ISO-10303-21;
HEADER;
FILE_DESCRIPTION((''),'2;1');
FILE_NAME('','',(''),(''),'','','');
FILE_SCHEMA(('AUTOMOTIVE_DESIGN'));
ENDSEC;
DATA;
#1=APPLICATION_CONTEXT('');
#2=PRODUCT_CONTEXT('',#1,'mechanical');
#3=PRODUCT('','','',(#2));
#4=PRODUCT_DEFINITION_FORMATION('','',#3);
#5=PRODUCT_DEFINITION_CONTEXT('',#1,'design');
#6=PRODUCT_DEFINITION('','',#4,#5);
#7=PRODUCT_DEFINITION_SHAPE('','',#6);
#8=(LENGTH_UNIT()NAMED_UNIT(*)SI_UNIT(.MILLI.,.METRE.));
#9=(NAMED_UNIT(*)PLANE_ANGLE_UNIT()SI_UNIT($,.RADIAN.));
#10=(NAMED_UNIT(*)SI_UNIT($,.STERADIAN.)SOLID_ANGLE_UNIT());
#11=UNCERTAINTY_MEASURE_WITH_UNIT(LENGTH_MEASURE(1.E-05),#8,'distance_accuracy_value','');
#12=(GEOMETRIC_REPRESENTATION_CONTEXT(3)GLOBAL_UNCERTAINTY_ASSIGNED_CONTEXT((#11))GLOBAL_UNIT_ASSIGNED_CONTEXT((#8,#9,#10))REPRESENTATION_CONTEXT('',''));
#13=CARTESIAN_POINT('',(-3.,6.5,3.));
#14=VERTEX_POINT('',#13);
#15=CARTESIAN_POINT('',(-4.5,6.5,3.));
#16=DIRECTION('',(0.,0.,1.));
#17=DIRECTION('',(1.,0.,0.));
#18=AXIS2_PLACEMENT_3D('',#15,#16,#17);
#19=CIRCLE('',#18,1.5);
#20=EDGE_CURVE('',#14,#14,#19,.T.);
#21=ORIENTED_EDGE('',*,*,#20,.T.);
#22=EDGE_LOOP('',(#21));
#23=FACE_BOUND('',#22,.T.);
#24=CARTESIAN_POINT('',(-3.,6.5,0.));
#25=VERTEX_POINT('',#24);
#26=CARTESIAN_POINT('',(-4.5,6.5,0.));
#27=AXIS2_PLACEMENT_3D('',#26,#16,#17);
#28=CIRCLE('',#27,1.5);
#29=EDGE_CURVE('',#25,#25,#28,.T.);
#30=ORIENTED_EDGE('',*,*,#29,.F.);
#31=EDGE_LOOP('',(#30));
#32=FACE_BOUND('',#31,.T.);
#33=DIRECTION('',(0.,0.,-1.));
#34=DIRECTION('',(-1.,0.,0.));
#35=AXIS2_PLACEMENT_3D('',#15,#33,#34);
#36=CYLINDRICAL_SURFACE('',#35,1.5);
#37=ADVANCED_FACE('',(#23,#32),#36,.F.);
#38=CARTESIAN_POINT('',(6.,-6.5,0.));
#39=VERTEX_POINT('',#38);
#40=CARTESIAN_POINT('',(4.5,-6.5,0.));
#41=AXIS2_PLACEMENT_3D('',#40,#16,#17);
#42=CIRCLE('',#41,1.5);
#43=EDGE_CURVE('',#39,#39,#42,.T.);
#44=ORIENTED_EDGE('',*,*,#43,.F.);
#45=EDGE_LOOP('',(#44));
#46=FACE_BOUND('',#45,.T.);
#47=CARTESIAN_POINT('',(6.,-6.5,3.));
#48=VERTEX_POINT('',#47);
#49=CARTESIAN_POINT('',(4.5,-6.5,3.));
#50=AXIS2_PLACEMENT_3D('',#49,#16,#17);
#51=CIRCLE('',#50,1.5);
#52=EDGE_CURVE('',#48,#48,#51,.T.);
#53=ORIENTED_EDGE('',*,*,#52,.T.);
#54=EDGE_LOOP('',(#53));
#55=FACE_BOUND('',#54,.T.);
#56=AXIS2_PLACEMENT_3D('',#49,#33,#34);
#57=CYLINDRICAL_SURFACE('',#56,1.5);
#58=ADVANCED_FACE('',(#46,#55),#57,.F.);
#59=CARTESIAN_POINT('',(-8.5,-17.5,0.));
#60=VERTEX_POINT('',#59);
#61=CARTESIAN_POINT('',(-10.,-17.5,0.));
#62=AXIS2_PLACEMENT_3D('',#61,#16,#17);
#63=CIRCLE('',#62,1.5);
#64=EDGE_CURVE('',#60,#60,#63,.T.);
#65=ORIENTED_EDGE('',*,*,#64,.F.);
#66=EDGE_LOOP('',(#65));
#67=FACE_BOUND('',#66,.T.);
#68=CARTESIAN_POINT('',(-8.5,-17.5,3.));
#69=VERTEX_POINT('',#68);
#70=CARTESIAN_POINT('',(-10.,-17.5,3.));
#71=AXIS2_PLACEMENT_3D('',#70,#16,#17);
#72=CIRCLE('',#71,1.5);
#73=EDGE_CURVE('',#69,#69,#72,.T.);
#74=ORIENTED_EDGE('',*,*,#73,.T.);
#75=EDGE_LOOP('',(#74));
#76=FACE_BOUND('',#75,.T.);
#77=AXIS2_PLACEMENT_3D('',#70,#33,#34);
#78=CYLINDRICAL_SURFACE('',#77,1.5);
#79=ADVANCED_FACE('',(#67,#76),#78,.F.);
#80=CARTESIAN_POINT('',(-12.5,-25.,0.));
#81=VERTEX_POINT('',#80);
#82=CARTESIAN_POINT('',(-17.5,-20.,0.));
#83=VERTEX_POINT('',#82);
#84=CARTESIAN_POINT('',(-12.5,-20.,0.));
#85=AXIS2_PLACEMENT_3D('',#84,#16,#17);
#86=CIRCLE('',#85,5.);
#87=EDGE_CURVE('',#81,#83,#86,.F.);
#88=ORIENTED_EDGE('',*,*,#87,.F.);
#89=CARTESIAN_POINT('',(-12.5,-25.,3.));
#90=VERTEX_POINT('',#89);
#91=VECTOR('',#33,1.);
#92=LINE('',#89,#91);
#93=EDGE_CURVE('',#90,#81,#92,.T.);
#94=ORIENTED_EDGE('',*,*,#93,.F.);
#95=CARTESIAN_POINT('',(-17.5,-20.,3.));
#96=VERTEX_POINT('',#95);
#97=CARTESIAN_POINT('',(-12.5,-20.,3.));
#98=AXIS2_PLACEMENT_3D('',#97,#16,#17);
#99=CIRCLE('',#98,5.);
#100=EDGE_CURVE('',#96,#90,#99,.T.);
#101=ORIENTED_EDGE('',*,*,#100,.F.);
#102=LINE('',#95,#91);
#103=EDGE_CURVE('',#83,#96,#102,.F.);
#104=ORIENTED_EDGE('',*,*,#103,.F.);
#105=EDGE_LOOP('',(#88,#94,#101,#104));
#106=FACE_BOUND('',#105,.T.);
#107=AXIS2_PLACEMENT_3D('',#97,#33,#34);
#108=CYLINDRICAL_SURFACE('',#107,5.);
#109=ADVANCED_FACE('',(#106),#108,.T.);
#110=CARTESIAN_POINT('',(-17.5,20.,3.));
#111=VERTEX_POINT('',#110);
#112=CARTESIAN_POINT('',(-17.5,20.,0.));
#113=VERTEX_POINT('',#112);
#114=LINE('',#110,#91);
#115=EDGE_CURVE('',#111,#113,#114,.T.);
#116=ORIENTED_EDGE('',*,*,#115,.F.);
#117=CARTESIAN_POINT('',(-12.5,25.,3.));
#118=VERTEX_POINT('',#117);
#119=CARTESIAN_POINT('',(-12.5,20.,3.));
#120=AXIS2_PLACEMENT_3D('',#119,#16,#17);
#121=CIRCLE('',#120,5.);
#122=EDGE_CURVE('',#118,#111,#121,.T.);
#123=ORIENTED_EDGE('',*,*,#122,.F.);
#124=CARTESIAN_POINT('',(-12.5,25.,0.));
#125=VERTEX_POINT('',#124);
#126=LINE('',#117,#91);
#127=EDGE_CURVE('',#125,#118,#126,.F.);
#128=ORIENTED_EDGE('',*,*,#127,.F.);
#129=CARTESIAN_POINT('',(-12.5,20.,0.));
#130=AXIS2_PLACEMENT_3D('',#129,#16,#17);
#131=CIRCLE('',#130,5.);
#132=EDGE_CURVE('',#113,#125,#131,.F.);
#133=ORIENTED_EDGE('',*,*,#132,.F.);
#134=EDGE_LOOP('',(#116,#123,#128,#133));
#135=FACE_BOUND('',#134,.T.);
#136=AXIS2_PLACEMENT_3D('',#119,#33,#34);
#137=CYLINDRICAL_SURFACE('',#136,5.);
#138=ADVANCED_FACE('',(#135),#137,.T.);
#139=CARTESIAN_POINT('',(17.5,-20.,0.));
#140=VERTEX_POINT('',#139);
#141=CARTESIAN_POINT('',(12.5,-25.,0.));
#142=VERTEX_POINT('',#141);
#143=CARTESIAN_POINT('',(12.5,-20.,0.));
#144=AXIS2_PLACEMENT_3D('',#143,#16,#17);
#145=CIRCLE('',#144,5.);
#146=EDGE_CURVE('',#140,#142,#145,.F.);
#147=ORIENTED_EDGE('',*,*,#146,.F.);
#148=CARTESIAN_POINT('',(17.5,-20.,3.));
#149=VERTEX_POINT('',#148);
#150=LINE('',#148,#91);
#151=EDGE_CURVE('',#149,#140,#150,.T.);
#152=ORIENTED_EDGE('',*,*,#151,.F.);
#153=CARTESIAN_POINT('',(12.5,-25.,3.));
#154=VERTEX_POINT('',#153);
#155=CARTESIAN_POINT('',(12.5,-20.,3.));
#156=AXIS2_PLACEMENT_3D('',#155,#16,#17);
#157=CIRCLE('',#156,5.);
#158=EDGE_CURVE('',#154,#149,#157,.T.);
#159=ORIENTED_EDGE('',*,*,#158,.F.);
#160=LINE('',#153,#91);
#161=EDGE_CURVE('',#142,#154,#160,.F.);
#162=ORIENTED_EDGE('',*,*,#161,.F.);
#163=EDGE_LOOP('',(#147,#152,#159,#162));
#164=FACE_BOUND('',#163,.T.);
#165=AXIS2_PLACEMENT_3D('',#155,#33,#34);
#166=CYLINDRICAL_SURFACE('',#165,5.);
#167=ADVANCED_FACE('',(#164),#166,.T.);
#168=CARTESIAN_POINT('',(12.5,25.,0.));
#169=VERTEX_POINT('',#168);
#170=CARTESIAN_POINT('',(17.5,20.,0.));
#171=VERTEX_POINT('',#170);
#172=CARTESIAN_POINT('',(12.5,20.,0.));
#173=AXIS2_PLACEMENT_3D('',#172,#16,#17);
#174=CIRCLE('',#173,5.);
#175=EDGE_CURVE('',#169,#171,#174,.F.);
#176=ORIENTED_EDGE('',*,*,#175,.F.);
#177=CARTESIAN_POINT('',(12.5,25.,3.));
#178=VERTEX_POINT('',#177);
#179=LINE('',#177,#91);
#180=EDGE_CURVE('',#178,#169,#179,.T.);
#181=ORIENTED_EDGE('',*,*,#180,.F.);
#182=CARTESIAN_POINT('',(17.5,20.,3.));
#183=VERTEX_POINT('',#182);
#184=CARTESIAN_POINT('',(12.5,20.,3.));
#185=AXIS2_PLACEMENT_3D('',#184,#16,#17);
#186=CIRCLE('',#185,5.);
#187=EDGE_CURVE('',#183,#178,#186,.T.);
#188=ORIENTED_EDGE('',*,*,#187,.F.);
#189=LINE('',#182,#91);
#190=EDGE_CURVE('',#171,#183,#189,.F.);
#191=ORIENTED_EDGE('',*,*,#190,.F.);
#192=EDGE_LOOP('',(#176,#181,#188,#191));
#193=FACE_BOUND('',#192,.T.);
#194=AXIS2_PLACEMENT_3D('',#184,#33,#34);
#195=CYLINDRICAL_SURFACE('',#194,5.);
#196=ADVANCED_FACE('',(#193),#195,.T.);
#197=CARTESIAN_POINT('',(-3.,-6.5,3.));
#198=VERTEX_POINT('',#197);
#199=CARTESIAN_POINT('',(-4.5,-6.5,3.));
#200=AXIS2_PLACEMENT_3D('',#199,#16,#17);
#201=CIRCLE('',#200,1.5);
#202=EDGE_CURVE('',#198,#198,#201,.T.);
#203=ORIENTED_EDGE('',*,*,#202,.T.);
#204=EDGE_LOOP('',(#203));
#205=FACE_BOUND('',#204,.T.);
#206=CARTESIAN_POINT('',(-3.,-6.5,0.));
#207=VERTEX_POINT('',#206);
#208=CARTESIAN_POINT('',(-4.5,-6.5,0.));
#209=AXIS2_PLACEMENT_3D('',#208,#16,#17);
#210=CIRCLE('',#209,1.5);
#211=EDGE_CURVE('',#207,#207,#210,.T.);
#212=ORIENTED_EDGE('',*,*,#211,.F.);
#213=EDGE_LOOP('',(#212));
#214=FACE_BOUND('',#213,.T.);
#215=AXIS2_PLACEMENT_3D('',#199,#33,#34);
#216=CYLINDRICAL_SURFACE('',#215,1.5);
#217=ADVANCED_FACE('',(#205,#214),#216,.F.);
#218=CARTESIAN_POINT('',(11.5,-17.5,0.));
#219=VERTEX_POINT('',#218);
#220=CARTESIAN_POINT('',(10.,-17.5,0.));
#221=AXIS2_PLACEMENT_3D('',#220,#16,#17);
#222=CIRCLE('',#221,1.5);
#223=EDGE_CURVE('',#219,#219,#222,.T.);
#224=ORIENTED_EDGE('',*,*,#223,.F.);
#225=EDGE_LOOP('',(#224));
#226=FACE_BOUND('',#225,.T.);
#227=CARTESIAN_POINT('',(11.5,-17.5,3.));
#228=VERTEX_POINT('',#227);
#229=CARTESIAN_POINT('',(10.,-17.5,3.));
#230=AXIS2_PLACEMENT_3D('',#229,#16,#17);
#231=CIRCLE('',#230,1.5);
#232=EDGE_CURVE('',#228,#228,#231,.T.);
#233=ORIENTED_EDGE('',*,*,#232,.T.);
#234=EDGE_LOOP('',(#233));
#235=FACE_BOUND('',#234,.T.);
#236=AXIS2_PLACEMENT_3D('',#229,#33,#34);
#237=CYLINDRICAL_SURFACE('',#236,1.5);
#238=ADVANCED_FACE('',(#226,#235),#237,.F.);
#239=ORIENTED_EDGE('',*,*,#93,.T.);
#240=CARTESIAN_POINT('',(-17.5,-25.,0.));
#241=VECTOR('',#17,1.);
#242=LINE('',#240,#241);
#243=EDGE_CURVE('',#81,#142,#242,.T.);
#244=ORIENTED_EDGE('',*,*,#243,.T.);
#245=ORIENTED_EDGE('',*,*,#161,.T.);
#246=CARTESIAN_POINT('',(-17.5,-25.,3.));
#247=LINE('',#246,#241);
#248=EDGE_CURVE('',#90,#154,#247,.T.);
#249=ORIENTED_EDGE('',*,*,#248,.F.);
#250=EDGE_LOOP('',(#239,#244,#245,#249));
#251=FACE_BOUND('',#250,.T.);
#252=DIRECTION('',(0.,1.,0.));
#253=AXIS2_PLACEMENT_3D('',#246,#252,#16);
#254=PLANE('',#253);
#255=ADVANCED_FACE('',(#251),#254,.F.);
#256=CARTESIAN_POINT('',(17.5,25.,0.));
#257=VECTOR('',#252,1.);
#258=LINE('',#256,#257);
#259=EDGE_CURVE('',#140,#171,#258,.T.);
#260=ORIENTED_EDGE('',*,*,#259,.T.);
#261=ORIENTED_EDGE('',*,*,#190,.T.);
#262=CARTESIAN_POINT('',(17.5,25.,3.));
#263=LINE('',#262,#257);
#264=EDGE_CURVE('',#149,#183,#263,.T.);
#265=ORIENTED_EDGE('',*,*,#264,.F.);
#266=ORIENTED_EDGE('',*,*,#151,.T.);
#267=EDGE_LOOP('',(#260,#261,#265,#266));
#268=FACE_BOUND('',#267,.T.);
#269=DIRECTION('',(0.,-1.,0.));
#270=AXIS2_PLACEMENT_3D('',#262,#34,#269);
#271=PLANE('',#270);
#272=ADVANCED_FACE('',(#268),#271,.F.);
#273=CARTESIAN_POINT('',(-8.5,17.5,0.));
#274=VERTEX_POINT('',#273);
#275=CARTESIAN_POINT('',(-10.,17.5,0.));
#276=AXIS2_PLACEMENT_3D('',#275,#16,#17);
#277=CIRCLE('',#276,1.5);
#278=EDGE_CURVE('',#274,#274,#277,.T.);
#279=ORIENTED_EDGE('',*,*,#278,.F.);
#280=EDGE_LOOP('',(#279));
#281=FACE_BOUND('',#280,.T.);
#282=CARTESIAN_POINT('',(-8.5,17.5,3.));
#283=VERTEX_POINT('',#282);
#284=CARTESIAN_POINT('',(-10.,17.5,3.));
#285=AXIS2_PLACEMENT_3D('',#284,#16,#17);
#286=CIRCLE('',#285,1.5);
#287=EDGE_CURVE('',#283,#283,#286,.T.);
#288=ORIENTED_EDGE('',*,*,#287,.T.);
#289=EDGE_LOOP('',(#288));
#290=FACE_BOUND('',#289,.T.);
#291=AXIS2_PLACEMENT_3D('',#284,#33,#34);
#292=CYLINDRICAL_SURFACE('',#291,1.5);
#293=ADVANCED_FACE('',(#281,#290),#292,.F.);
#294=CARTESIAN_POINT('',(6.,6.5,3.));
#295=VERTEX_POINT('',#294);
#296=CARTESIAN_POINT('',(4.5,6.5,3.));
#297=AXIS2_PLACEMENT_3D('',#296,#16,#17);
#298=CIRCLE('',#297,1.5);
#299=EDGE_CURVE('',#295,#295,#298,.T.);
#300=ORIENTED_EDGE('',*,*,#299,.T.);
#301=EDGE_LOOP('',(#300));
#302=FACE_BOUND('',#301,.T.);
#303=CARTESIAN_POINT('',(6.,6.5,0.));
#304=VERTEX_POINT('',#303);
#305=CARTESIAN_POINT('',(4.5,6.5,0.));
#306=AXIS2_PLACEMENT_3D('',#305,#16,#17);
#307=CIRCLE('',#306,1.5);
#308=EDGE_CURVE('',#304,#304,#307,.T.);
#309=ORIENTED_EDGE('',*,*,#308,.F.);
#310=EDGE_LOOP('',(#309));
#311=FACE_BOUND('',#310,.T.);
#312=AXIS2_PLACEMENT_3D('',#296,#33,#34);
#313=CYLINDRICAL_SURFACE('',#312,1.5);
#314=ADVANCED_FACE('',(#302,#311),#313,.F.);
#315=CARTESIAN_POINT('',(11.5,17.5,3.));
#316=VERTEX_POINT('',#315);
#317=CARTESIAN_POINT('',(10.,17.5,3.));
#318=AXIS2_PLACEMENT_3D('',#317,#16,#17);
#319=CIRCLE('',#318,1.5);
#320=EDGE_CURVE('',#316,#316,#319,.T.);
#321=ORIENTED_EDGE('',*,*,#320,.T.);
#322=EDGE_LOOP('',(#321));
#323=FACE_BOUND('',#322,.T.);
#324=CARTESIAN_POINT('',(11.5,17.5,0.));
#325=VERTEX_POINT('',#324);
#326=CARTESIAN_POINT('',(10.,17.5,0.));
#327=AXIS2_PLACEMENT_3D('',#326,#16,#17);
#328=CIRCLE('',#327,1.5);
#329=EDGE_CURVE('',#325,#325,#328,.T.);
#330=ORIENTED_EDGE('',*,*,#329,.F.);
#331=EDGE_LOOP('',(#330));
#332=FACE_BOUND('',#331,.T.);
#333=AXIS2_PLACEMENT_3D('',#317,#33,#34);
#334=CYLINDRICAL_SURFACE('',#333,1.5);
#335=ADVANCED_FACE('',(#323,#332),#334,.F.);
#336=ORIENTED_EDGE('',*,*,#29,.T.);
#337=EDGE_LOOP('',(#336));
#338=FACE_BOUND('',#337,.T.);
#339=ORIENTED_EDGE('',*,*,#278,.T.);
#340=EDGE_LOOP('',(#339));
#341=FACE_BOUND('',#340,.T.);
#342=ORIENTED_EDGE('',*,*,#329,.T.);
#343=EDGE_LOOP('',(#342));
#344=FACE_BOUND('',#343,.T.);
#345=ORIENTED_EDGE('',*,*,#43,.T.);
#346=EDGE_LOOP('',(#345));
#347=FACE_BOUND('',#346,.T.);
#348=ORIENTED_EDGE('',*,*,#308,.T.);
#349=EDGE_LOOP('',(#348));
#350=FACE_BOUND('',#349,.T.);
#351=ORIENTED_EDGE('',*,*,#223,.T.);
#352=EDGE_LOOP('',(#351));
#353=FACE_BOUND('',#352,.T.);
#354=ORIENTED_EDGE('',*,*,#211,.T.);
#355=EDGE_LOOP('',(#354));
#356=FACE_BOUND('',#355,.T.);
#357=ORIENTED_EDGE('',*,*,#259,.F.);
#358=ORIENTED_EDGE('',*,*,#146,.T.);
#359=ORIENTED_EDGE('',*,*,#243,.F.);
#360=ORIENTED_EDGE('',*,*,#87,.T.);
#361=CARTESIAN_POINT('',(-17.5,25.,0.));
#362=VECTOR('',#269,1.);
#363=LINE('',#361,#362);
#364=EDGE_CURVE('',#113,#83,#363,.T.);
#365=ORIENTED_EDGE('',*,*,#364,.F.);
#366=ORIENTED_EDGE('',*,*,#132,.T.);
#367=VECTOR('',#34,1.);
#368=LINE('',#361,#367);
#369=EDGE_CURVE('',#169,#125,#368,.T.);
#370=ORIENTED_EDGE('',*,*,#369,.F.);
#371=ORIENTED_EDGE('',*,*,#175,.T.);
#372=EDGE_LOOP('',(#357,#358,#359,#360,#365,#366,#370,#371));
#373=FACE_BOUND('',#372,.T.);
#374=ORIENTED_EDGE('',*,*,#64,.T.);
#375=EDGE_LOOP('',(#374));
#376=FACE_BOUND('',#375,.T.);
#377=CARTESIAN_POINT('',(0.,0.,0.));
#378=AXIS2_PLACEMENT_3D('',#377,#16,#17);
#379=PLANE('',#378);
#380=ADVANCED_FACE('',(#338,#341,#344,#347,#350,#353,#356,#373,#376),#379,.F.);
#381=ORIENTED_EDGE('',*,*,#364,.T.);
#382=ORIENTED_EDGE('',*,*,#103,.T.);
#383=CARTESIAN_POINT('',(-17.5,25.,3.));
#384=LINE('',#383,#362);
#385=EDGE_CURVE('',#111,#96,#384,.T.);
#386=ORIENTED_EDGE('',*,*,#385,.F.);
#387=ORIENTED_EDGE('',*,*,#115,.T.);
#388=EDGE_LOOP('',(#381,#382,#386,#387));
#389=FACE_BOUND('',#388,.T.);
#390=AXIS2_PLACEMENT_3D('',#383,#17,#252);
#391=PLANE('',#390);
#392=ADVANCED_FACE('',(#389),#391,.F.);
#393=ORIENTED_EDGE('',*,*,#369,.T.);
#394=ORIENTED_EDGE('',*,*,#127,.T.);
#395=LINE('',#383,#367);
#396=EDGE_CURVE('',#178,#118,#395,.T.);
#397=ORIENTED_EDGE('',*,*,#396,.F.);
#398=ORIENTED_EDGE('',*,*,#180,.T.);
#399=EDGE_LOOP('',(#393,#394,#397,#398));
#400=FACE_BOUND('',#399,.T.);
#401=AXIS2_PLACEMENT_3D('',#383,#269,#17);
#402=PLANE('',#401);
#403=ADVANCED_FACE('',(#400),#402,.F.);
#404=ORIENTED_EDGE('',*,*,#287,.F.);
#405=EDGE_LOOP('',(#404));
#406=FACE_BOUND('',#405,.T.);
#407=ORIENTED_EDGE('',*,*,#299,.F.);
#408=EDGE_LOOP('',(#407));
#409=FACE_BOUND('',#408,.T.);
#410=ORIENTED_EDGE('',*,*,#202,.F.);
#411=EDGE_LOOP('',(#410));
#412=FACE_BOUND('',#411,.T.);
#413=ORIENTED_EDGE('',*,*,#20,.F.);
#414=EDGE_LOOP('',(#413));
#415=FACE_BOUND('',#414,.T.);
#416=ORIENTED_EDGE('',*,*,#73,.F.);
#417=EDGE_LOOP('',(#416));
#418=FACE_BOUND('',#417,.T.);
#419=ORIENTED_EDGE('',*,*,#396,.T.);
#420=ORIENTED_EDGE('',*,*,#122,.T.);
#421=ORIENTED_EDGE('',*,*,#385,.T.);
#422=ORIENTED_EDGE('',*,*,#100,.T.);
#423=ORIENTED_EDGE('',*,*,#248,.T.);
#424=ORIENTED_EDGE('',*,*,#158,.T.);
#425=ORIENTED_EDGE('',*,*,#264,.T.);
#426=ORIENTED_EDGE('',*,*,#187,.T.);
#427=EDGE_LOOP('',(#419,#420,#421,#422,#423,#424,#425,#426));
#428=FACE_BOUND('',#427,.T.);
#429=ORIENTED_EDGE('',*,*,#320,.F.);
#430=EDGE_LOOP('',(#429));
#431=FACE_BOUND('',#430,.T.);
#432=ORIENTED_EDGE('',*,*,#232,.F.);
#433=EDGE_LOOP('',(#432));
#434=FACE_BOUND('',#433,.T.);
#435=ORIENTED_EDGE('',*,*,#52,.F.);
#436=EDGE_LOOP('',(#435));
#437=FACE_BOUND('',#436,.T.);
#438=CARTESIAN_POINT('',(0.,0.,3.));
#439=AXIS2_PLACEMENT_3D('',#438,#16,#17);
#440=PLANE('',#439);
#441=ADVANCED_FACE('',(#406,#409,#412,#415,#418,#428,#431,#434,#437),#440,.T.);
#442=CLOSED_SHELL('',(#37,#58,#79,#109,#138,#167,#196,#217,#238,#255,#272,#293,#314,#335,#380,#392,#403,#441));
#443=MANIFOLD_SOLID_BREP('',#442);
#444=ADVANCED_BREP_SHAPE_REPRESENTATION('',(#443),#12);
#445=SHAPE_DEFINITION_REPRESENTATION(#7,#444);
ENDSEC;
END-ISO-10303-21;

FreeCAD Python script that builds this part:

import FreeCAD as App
import Part
import Sketcher

V = App.Vector
Q = App.Units.Quantity


def edges_at(feature, points):
    """Names of the edges that pass closest to the given points."""
    edges = feature.Shape.Edges
    near = lambda p: min(range(len(edges)), key=lambda i: edges[i].distToShape(Part.Vertex(*p))[0])
    return sorted({f"Edge{near(p) + 1}" for p in points})


def add_polygon(sketch, points):
    """Adds a closed chain of lines whose ends are joined by coincident constraints."""
    first, n = sketch.GeometryCount, len(points)
    for a, b in zip(points, points[1:] + points[:1]):
        sketch.addGeometry(Part.LineSegment(App.Vector(*a, 0), App.Vector(*b, 0)), False)
    for i in range(n):
        sketch.addConstraint(Sketcher.Constraint("Coincident", first + i, 2, first + (i + 1) % n, 1))

doc = App.newDocument("Part")
params = doc.addObject("Spreadsheet::Sheet", "Params")
for row, (alias, value) in enumerate([
    ("sketch1_diameter", "3 mm"),
    ("sketch1_width", "35 mm"),
    ("sketch1_height", "50 mm"),
    ("pad1_length", "3 mm"),
    ("fillet_radius", "5 mm"),
], start=1):
    params.set(f"A{row}", alias)
    params.set(f"B{row}", "=" + value)
    params.setAlias(f"B{row}", alias)

body = doc.addObject("PartDesign::Body", "Body")

sketch1 = doc.addObject("Sketcher::SketchObject", "Sketch")
body.addObject(sketch1)
sketch1.AttachmentSupport = (doc.XY_Plane, [""])
sketch1.MapMode = "FlatFace"
add_polygon(sketch1, [(-17.5, 25), (-17.5, -25), (17.5, -25), (17.5, 25)])
sketch1.addGeometry(Part.Circle(V(-10, -17.5, 0), V(0, 0, 1), 1.5), False)
sketch1.addGeometry(Part.Circle(V(-4.5, -6.5, 0), V(0, 0, 1), 1.5), False)
sketch1.addGeometry(Part.Circle(V(10, -17.5, 0), V(0, 0, 1), 1.5), False)
sketch1.addGeometry(Part.Circle(V(4.5, -6.5, 0), V(0, 0, 1), 1.5), False)
sketch1.addGeometry(Part.Circle(V(-4.5, 6.5, 0), V(0, 0, 1), 1.5), False)
sketch1.addGeometry(Part.Circle(V(-10, 17.5, 0), V(0, 0, 1), 1.5), False)
sketch1.addGeometry(Part.Circle(V(4.5, 6.5, 0), V(0, 0, 1), 1.5), False)
sketch1.addGeometry(Part.Circle(V(10, 17.5, 0), V(0, 0, 1), 1.5), False)
sketch1.addConstraint([
    Sketcher.Constraint("Vertical", 0),
    Sketcher.Constraint("Horizontal", 1),
    Sketcher.Constraint("Vertical", 2),
    Sketcher.Constraint("Horizontal", 3),
    Sketcher.Constraint("Equal", 4, 5),
    Sketcher.Constraint("Equal", 5, 6),
    Sketcher.Constraint("Equal", 6, 7),
    Sketcher.Constraint("Equal", 7, 8),
    Sketcher.Constraint("Equal", 8, 9),
    Sketcher.Constraint("Equal", 9, 10),
    Sketcher.Constraint("Equal", 10, 11),
    Sketcher.Constraint("Symmetric", 7, 3, 8, 3, -1, 1),
    Sketcher.Constraint("Symmetric", 6, 3, 9, 3, -1, 1),
    Sketcher.Constraint("Symmetric", 5, 3, 10, 3, -1, 1),
    Sketcher.Constraint("Symmetric", 4, 3, 11, 3, -1, 1),
    Sketcher.Constraint("Symmetric", 0, 2, 2, 2, -1, 1),
    Sketcher.Constraint("Symmetric", 4, 3, 6, 3, -2),
    Sketcher.Constraint("Symmetric", 5, 3, 7, 3, -2),
    Sketcher.Constraint("Diameter", 4, Q("3 mm")),
    Sketcher.Constraint("DistanceX", 1, 1, 1, 2, Q("35 mm")),
    Sketcher.Constraint("DistanceY", 0, 2, 0, 1, Q("50 mm")),
    Sketcher.Constraint("DistanceX", 4, 3, -1, 1, Q("10 mm")),
    Sketcher.Constraint("DistanceY", 4, 3, 5, 3, Q("11 mm")),
    Sketcher.Constraint("DistanceX", 5, 3, 7, 3, Q("9 mm")),
    Sketcher.Constraint("DistanceY", 5, 3, 8, 3, Q("13 mm")),
])
sketch1.setExpression("Constraints[22]", "Params.sketch1_diameter")
sketch1.setExpression("Constraints[23]", "Params.sketch1_width")
sketch1.setExpression("Constraints[24]", "Params.sketch1_height")
pad1 = doc.addObject("PartDesign::Pad", "Pad")
body.addObject(pad1)
pad1.Profile = sketch1
pad1.setExpression("Length", "Params.pad1_length")
doc.recompute()

fillet = doc.addObject("PartDesign::Fillet", "Fillet")
body.addObject(fillet)
fillet.Base = (pad1, edges_at(pad1, [
    (17.5, -25, 1.5),
    (-17.5, -25, 1.5),
    (-17.5, 25, 1.5),
    (17.5, 25, 1.5),
]))
fillet.setExpression("Radius", "Params.fillet_radius")

doc.recompute()
